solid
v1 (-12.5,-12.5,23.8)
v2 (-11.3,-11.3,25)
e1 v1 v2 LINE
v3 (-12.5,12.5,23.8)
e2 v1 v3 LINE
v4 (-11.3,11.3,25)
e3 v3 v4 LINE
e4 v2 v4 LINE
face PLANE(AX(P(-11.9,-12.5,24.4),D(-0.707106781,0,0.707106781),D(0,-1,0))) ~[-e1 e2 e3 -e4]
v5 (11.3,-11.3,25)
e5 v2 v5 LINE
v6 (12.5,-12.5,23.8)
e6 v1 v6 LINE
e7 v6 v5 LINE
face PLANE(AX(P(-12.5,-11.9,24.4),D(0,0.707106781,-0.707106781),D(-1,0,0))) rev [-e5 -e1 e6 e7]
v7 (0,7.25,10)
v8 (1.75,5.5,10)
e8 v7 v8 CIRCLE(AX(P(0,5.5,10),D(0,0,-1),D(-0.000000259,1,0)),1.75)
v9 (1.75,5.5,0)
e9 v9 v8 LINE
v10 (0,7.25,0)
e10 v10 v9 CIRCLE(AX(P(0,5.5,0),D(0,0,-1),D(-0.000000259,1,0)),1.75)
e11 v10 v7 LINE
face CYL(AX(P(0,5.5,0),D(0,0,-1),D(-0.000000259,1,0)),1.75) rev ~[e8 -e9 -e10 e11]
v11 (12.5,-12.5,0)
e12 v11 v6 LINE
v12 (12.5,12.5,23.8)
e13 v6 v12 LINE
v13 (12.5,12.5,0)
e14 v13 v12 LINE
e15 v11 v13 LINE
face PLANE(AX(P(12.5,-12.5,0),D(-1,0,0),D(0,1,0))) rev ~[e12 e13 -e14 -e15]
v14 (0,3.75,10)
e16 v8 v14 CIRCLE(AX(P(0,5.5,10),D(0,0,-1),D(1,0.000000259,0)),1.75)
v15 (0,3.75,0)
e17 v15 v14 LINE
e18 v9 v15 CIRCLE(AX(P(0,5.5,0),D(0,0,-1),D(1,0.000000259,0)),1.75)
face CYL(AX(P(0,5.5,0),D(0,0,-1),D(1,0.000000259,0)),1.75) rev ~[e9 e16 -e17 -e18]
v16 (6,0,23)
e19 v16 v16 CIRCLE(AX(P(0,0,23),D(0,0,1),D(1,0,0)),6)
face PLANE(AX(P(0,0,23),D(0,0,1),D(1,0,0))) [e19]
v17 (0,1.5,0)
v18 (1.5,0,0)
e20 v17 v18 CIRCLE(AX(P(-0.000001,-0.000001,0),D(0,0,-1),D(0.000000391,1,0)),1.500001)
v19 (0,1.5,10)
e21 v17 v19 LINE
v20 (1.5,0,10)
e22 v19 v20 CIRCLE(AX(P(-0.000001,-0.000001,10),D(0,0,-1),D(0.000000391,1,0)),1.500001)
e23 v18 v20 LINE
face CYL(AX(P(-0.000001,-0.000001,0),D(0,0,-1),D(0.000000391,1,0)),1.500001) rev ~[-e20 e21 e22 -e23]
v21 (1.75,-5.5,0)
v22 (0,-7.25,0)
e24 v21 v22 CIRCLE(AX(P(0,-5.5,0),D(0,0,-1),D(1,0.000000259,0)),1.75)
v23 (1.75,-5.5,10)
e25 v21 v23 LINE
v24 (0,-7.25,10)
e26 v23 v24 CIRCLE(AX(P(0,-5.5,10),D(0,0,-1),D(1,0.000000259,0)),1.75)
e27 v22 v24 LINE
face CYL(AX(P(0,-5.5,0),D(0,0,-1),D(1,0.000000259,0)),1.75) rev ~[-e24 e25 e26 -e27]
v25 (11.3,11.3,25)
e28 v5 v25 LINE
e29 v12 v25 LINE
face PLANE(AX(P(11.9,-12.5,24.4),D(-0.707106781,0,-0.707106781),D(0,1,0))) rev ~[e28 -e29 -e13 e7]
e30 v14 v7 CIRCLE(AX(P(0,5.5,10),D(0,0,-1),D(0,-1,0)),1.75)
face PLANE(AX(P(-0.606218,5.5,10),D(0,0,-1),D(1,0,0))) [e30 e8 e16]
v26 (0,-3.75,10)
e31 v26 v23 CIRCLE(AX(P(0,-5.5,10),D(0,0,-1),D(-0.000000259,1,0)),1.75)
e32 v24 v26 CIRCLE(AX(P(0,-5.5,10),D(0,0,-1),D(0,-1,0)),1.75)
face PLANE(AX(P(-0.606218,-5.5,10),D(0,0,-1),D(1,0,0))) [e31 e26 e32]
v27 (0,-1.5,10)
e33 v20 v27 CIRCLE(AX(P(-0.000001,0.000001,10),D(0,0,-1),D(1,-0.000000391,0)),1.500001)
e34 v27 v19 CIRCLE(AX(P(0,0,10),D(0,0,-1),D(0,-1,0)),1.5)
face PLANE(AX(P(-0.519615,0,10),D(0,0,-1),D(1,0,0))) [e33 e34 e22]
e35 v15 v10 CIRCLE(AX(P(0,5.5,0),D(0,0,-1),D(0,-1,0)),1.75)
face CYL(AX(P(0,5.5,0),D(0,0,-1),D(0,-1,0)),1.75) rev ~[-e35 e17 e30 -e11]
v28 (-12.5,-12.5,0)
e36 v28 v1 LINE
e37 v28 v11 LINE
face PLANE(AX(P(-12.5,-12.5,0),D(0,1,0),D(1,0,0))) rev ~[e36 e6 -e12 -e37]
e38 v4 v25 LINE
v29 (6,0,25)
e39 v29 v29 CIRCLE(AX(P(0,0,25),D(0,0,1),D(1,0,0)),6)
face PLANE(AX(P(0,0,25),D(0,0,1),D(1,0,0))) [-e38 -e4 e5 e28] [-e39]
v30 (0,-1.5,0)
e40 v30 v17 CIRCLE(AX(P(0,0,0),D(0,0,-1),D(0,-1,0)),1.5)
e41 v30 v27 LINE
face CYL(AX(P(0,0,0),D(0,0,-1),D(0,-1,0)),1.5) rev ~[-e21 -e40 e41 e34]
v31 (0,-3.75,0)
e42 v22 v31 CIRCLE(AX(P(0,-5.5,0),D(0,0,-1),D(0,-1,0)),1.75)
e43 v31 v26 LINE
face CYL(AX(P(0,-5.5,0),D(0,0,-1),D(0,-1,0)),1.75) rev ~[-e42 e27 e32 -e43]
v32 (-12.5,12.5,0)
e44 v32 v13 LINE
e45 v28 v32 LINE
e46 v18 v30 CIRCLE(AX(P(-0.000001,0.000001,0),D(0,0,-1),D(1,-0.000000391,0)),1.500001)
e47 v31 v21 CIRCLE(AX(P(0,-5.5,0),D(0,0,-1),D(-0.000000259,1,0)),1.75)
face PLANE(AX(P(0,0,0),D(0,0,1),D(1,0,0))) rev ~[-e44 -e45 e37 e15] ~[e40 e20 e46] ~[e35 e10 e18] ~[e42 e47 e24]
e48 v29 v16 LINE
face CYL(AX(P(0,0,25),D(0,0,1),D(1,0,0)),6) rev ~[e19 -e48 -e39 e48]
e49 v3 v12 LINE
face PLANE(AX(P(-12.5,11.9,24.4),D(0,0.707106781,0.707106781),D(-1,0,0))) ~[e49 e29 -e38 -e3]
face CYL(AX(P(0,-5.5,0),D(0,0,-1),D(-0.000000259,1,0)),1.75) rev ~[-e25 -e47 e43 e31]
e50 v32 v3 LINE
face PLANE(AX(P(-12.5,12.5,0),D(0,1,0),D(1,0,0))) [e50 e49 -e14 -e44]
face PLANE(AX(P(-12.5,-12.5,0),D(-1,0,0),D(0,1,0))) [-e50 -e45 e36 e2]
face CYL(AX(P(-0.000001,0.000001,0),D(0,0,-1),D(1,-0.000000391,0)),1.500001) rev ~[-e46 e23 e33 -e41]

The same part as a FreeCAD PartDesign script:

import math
import FreeCAD as App
import Part
import Sketcher
from FreeCAD import Vector


def edges_at(feature, points):
    """Names of the edges that pass closest to the given points."""
    edges = feature.Shape.Edges
    near = lambda p: min(range(len(edges)), key=lambda i: edges[i].distToShape(Part.Vertex(*p))[0])
    return sorted({f"Edge{near(p) + 1}" for p in points})

doc = App.newDocument("Part")
body = doc.addObject("PartDesign::Body", "Body")

# Sketch on XY plane
sketch1 = doc.addObject("Sketcher::SketchObject", "Sketch")
body.addObject(sketch1)
sketch1.AttachmentSupport = (doc.XY_Plane, [""])
sketch1.MapMode = "FlatFace"
sketch1.addGeometry(Part.LineSegment(Vector(-12, 12, 0), Vector(-12, -12, 0)), False)
sketch1.addGeometry(Part.LineSegment(Vector(-12, -12, 0), Vector(12, -12, 0)), False)
sketch1.addGeometry(Part.LineSegment(Vector(12, -12, 0), Vector(12, 12, 0)), False)
sketch1.addGeometry(Part.LineSegment(Vector(12, 12, 0), Vector(-12, 12, 0)), False)
sketch1.addConstraint(Sketcher.Constraint("Coincident", 0, 2, 1, 1))
sketch1.addConstraint(Sketcher.Constraint("Coincident", 1, 2, 2, 1))
sketch1.addConstraint(Sketcher.Constraint("Coincident", 2, 2, 3, 1))
sketch1.addConstraint(Sketcher.Constraint("Coincident", 3, 2, 0, 1))
sketch1.addConstraint(Sketcher.Constraint("Vertical", 0))
sketch1.addConstraint(Sketcher.Constraint("Horizontal", 1))
sketch1.addConstraint(Sketcher.Constraint("Vertical", 2))
sketch1.addConstraint(Sketcher.Constraint("Horizontal", 3))
sketch1.addConstraint(Sketcher.Constraint("Symmetric", 0, 2, 2, 2, -1, 1))
sketch1.addConstraint(Sketcher.Constraint("Equal", 3, 0))
sketch1.addConstraint(Sketcher.Constraint("DistanceX", 1, 1, 1, 2, 25.0))
pad1 = doc.addObject("PartDesign::Pad", "Pad")
body.addObject(pad1)
pad1.Profile = sketch1
pad1.Length = 25

# Sketch on XY plane
sketch2 = doc.addObject("Sketcher::SketchObject", "Sketch001")
body.addObject(sketch2)
sketch2.AttachmentSupport = (doc.XY_Plane, [""])
sketch2.MapMode = "FlatFace"
sketch2.AttachmentOffset = App.Placement(Vector(0, 0, 25), App.Rotation())
sketch2.addGeometry(Part.Circle(Vector(0, 0, 0), Vector(0, 0, 1), 6), False)
sketch2.addConstraint(Sketcher.Constraint("Coincident", 0, 3, -1, 1))
sketch2.addConstraint(Sketcher.Constraint("Diameter", 0, 12.0))
pocket1 = doc.addObject("PartDesign::Pocket", "Pocket")
body.addObject(pocket1)
pocket1.Profile = sketch2
pocket1.Length = 2

# Sketch on XY plane
sketch3 = doc.addObject("Sketcher::SketchObject", "Sketch002")
body.addObject(sketch3)
sketch3.AttachmentSupport = (doc.XY_Plane, [""])
sketch3.MapMode = "FlatFace"
sketch3.addGeometry(Part.ArcOfCircle(Part.Circle(Vector(0, 5.5, 0), Vector(0, 0, 1), 1.8), math.radians(90), math.radians(270)), False)
sketch3.addGeometry(Part.ArcOfCircle(Part.Circle(Vector(0, 5.5, 0), Vector(0, 0, 1), 1.7), math.radians(0), math.radians(90)), False)
sketch3.addGeometry(Part.ArcOfCircle(Part.Circle(Vector(0, 5.5, 0), Vector(0, 0, 1), 1.7), math.radians(-90), math.radians(0)), False)
sketch3.addGeometry(Part.ArcOfCircle(Part.Circle(Vector(0, -5.5, 0), Vector(0, 0, 1), 1.8), math.radians(90), math.radians(270)), False)
sketch3.addGeometry(Part.ArcOfCircle(Part.Circle(Vector(0, -5.5, 0), Vector(0, 0, 1), 1.7), math.radians(0), math.radians(90)), False)
sketch3.addGeometry(Part.ArcOfCircle(Part.Circle(Vector(0, -5.5, 0), Vector(0, 0, 1), 1.7), math.radians(-90), math.radians(0)), False)
sketch3.addGeometry(Part.ArcOfCircle(Part.Circle(Vector(0, 0, 0), Vector(0, 0, 1), 1.5), math.radians(90), math.radians(270)), False)
sketch3.addGeometry(Part.ArcOfCircle(Part.Circle(Vector(0, 0, 0), Vector(0, 0, 1), 1.5), math.radians(0), math.radians(90)), False)
sketch3.addGeometry(Part.ArcOfCircle(Part.Circle(Vector(0, 0, 0), Vector(0, 0, 1), 1.5), math.radians(-90), math.radians(0)), False)
sketch3.addConstraint(Sketcher.Constraint("Tangent", 0, 1, 1, 2))
sketch3.addConstraint(Sketcher.Constraint("Tangent", 1, 1, 2, 2))
sketch3.addConstraint(Sketcher.Constraint("Tangent", 2, 1, 0, 2))
sketch3.addConstraint(Sketcher.Constraint("Tangent", 3, 1, 4, 2))
sketch3.addConstraint(Sketcher.Constraint("Tangent", 4, 1, 5, 2))
sketch3.addConstraint(Sketcher.Constraint("Tangent", 5, 1, 3, 2))
sketch3.addConstraint(Sketcher.Constraint("Tangent", 6, 1, 7, 2))
sketch3.addConstraint(Sketcher.Constraint("Tangent", 7, 1, 8, 2))
sketch3.addConstraint(Sketcher.Constraint("Tangent", 8, 1, 6, 2))
sketch3.addConstraint(Sketcher.Constraint("Coincident", 6, 3, -1, 1))
sketch3.addConstraint(Sketcher.Constraint("Equal", 2, 3))
sketch3.addConstraint(Sketcher.Constraint("Symmetric", 0, 3, 3, 3, -1, 1))
sketch3.addConstraint(Sketcher.Constraint("Symmetric", 1, 1, 4, 1, -1))
sketch3.addConstraint(Sketcher.Constraint("PointOnObject", 0, 1, -2))
sketch3.addConstraint(Sketcher.Constraint("PointOnObject", 2, 1, -2))
sketch3.addConstraint(Sketcher.Constraint("PointOnObject", 3, 1, -2))
sketch3.addConstraint(Sketcher.Constraint("PointOnObject", 5, 1, -2))
sketch3.addConstraint(Sketcher.Constraint("PointOnObject", 6, 1, -2))
sketch3.addConstraint(Sketcher.Constraint("PointOnObject", 7, 1, -1))
sketch3.addConstraint(Sketcher.Constraint("PointOnObject", 8, 1, -2))
sketch3.addConstraint(Sketcher.Constraint("Horizontal", 2, 3, 1, 1))
sketch3.addConstraint(Sketcher.Constraint("Radius", 6, 1.5))
sketch3.addConstraint(Sketcher.Constraint("Radius", 0, 1.75))
sketch3.addConstraint(Sketcher.Constraint("DistanceY", 3, 3, 2, 3, 11.0))
pocket2 = doc.addObject("PartDesign::Pocket", "Pocket001")
body.addObject(pocket2)
pocket2.Profile = sketch3
pocket2.Length = 10
pocket2.Reversed = True
doc.recompute()

chamfer = doc.addObject("PartDesign::Chamfer", "Chamfer")
body.addObject(chamfer)
chamfer.Base = (pocket2, edges_at(pocket2, [
    (0, 12.5, 25),
    (-12.5, 0, 25),
    (0, -12.5, 25),
    (12.5, 0, 25),
]))
chamfer.Size = 1.2

doc.recompute()
